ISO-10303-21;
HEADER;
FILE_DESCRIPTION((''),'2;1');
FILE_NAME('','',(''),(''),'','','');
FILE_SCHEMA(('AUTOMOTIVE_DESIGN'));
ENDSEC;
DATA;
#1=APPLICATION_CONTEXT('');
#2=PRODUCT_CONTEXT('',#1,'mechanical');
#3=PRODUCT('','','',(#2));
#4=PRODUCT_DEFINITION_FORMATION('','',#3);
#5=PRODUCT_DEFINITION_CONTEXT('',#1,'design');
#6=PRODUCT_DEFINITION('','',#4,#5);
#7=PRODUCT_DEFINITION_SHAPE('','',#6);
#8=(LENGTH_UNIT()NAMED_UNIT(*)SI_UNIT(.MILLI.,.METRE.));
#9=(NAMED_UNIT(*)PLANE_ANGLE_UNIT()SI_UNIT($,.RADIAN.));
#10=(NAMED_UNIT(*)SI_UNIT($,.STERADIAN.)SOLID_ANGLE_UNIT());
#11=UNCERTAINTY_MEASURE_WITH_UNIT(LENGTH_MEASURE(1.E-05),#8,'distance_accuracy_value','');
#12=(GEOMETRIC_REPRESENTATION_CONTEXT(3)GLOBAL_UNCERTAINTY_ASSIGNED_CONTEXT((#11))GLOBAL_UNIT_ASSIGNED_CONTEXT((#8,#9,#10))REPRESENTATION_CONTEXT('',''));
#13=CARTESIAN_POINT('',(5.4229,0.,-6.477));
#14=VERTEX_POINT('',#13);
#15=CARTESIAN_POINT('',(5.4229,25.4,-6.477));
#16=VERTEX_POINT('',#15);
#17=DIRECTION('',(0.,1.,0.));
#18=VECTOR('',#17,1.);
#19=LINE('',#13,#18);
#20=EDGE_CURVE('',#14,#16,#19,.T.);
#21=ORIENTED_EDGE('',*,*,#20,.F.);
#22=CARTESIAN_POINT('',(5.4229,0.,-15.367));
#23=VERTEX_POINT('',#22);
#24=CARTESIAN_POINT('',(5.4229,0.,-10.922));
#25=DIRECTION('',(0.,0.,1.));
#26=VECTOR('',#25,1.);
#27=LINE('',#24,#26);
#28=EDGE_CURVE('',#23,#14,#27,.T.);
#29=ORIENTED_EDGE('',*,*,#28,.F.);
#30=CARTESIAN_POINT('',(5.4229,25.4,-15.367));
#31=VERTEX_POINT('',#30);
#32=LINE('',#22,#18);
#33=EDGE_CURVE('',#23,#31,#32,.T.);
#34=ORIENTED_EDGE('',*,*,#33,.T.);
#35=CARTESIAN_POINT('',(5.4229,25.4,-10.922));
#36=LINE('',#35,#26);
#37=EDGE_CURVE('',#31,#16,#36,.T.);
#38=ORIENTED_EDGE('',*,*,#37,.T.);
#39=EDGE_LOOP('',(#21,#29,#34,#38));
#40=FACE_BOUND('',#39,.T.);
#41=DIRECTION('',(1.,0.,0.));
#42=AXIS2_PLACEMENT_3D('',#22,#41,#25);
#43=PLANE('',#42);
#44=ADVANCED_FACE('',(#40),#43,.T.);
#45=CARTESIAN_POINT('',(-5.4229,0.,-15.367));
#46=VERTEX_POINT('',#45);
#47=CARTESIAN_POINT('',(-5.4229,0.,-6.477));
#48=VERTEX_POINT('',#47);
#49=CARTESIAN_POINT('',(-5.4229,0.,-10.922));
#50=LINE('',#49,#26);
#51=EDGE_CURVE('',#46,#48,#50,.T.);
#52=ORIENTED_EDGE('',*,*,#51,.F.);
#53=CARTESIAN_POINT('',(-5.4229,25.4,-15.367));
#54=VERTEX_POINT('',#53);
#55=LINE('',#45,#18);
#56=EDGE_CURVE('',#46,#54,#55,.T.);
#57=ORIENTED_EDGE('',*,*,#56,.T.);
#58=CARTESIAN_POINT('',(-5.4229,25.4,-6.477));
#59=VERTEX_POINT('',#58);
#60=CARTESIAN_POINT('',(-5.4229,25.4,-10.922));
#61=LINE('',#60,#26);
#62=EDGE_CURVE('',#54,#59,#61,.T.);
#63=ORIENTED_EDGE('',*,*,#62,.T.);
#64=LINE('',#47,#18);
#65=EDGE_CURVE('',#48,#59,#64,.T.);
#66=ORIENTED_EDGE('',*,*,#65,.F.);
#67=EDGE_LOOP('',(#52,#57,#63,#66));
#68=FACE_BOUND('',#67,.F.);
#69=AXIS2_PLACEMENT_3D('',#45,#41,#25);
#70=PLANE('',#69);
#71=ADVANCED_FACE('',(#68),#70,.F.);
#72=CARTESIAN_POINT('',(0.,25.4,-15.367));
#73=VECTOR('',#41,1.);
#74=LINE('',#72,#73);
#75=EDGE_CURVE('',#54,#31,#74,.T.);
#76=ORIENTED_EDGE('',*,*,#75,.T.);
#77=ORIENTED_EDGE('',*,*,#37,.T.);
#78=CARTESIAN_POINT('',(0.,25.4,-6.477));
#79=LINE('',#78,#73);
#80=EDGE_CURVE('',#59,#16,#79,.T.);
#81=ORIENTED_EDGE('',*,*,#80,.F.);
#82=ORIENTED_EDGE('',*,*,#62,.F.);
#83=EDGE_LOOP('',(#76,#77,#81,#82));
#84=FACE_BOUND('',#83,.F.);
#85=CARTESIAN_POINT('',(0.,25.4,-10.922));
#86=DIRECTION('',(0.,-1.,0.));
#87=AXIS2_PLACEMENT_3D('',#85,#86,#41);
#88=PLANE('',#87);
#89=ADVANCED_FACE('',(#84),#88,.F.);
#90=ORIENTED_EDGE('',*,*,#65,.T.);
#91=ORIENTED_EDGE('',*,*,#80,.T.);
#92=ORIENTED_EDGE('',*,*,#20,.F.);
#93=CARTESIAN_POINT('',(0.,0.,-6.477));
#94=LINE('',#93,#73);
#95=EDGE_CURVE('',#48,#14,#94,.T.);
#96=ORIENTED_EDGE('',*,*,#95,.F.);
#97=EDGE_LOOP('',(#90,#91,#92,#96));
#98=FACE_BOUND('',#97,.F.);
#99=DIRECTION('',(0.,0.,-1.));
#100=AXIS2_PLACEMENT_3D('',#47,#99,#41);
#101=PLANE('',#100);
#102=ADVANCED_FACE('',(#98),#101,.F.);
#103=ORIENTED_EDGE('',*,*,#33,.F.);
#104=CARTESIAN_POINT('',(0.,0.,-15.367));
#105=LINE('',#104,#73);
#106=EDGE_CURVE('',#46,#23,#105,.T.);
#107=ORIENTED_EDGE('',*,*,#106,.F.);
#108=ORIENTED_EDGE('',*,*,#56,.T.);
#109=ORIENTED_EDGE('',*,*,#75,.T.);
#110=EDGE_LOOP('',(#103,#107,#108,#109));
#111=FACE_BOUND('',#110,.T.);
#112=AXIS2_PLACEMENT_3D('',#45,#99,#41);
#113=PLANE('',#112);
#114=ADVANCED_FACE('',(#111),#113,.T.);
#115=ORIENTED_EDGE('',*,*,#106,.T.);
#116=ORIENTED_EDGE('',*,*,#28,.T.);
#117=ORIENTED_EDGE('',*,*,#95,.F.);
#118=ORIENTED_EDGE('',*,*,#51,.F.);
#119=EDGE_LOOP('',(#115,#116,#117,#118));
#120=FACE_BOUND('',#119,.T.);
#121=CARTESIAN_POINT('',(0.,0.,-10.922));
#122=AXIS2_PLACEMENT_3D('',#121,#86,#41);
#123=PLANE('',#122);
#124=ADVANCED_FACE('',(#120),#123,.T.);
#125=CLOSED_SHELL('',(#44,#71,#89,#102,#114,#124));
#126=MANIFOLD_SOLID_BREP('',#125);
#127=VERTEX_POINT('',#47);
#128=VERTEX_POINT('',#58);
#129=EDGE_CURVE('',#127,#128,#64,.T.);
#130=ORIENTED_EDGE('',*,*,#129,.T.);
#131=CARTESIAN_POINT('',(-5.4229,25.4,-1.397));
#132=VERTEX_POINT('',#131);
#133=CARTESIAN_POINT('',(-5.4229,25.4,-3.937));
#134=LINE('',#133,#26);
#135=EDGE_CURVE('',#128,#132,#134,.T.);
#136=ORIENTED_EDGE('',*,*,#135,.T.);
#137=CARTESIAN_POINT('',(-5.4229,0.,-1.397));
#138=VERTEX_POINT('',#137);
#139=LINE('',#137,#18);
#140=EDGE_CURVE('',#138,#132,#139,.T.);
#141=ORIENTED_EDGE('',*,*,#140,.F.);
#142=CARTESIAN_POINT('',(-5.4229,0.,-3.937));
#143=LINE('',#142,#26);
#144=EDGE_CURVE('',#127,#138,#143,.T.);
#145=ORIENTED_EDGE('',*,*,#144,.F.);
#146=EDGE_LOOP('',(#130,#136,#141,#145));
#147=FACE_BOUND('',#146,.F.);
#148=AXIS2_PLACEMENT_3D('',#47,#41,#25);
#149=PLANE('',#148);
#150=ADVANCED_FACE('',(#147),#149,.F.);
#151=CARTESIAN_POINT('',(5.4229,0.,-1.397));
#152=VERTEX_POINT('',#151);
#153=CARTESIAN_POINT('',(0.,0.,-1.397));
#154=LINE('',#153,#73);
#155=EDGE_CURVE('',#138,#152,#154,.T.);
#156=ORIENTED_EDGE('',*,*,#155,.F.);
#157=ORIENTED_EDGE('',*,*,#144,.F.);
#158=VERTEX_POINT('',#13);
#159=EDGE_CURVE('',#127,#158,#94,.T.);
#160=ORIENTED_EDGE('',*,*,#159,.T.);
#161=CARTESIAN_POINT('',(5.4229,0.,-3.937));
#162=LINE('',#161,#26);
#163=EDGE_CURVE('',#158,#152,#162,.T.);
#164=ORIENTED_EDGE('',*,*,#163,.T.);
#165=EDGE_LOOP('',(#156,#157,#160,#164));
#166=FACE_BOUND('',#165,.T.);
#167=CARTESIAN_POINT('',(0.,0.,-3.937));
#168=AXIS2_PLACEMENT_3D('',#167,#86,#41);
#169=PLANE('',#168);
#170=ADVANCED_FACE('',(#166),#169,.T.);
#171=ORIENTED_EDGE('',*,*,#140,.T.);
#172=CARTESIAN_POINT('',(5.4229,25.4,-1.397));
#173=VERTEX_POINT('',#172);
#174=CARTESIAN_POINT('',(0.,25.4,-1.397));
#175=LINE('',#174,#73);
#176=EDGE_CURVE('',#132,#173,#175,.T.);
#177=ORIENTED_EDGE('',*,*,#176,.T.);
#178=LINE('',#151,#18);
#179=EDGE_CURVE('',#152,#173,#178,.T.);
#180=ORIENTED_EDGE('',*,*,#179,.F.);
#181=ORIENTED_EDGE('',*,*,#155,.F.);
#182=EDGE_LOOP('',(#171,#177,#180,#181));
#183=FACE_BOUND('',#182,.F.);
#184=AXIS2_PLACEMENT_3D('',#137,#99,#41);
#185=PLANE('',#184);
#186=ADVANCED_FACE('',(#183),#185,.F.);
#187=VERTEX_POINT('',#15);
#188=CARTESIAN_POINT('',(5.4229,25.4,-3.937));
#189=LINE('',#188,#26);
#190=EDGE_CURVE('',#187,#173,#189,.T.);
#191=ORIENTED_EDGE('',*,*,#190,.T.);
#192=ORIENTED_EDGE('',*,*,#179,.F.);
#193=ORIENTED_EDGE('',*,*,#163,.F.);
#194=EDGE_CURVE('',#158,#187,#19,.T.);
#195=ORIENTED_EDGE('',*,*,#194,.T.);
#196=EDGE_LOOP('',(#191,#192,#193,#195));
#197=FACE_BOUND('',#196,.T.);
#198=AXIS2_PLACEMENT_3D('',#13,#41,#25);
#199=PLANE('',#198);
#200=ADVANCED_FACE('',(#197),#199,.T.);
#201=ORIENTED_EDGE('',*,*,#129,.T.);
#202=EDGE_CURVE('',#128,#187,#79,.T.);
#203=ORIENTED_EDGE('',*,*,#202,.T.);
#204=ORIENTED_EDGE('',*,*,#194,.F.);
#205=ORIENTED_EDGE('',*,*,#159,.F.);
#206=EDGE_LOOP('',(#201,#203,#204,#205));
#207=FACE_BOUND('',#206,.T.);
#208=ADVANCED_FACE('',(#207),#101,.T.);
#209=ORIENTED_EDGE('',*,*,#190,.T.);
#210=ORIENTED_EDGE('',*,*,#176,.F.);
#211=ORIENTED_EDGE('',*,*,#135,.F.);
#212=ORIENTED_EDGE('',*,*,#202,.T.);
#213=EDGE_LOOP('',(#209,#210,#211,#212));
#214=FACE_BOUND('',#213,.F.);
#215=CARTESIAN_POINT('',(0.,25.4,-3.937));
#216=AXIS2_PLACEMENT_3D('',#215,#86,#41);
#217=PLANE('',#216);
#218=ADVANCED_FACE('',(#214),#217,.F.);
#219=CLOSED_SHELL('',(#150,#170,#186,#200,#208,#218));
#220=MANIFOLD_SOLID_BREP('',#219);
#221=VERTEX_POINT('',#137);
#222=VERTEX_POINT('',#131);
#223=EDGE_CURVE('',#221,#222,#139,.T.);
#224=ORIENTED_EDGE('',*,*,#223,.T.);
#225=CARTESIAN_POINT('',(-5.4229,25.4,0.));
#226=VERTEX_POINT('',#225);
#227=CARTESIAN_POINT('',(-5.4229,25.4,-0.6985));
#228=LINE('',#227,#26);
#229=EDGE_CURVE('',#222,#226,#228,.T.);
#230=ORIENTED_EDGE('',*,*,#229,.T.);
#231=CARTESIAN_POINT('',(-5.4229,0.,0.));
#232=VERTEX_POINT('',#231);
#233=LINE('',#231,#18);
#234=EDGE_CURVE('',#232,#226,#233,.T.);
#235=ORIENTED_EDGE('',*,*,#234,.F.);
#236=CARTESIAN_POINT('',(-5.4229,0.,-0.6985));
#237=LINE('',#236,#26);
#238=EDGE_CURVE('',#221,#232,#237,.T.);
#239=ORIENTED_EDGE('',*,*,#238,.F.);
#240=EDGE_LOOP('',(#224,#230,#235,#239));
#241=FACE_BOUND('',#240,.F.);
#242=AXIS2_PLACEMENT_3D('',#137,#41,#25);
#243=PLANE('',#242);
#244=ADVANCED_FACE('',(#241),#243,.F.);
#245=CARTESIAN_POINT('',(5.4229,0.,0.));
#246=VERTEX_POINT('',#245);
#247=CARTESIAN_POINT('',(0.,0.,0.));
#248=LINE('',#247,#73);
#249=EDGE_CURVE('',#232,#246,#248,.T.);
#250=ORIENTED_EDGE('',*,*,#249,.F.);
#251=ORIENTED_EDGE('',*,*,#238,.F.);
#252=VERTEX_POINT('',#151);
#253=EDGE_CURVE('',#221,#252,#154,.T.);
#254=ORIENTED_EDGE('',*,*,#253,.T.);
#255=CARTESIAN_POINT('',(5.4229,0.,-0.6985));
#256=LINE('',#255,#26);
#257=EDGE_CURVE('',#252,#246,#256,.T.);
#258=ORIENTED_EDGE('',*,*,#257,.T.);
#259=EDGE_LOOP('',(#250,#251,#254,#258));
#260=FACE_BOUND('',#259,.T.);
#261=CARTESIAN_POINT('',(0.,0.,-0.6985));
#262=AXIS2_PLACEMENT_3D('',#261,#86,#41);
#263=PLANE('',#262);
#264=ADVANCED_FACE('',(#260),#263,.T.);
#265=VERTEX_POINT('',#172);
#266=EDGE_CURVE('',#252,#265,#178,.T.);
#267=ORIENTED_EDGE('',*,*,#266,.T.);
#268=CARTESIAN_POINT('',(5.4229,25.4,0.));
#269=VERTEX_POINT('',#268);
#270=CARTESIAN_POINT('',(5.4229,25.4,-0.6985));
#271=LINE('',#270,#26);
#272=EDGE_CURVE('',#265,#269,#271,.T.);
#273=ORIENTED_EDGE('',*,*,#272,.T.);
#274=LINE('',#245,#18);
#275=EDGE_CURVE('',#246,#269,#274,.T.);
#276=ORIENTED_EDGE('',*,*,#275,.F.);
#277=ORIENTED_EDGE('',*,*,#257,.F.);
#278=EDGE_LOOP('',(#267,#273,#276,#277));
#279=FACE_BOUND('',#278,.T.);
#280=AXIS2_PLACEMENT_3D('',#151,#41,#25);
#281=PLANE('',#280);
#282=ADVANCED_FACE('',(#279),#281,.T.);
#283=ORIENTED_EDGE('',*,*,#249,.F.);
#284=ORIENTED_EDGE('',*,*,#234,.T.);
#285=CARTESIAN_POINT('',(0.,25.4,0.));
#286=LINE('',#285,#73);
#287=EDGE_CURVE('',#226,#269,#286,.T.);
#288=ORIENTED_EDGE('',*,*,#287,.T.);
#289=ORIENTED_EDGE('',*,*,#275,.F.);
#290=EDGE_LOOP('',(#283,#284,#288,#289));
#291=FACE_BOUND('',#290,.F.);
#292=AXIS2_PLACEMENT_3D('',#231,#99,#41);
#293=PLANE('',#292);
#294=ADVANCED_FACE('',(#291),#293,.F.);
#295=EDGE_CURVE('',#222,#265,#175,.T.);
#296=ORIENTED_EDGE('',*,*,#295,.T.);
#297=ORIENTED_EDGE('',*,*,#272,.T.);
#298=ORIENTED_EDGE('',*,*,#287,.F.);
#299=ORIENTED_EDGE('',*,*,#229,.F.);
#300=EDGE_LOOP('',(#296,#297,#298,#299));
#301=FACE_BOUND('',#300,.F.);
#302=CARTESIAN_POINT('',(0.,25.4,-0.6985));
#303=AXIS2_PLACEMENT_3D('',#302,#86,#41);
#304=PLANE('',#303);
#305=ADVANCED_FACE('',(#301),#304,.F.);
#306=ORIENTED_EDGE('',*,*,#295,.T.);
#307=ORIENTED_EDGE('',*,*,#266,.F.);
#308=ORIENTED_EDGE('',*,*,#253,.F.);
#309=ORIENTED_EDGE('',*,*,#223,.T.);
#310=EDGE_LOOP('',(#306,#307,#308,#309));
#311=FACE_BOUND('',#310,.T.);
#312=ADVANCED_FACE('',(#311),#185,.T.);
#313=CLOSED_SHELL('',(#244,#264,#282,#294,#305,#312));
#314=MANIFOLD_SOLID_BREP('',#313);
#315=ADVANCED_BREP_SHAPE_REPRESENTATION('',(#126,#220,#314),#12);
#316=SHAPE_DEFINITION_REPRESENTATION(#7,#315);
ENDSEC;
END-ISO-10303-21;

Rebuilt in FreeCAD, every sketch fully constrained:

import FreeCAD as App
import Part
import Sketcher
Q = App.Units.Quantity

doc = App.newDocument("Part")
body = doc.addObject("PartDesign::Body", "Body")

sketch1 = body.newObject("Sketcher::SketchObject", "Sketch")
sketch1.AttachmentSupport = (doc.getObject("XZ_Plane"), [""])
sketch1.MapMode = "FlatFace"
sketch1.addGeometry([
    Part.LineSegment(App.Vector(-5.4, 0, 0), App.Vector(-5.4, -1.4, 0)),
    Part.LineSegment(App.Vector(-5.4, -1.4, 0), App.Vector(5.4, -1.4, 0)),
    Part.LineSegment(App.Vector(5.4, -1.4, 0), App.Vector(5.4, 0, 0)),
    Part.LineSegment(App.Vector(5.4, 0, 0), App.Vector(-5.4, 0, 0)),
], False)
sketch1.addConstraint([
    Sketcher.Constraint("Coincident", 0, 2, 1, 1),
    Sketcher.Constraint("Coincident", 1, 2, 2, 1),
    Sketcher.Constraint("Coincident", 2, 2, 3, 1),
    Sketcher.Constraint("Coincident", 3, 2, 0, 1),
    Sketcher.Constraint("Vertical", 0),
    Sketcher.Constraint("Horizontal", 1),
    Sketcher.Constraint("Vertical", 2),
    Sketcher.Constraint("Horizontal", 3),
    Sketcher.Constraint("Symmetric", 2, 2, 3, 2, -1, 1),
    Sketcher.Constraint("DistanceX", 1, 1, 1, 2, Q("0.427 in")),
    Sketcher.Constraint("DistanceY", 0, 2, 0, 1, Q("0.055 in")),
])
pad1 = body.newObject("PartDesign::Pad", "Pad")
pad1.Profile = sketch1
pad1.Length = Q("1 in")
pad1.Reversed = True
body2 = doc.addObject("PartDesign::Body", "Body001")

sketch2 = body2.newObject("Sketcher::SketchObject", "Sketch001")
sketch2.AttachmentSupport = (doc.getObject("XZ_Plane001"), [""])
sketch2.MapMode = "FlatFace"
sketch2.addGeometry([
    Part.LineSegment(App.Vector(-5, -1, 0), App.Vector(-5, -6, 0)),
    Part.LineSegment(App.Vector(-5, -6, 0), App.Vector(5, -6, 0)),
    Part.LineSegment(App.Vector(5, -6, 0), App.Vector(5, -1, 0)),
    Part.LineSegment(App.Vector(5, -1, 0), App.Vector(-5, -1, 0)),
], False)
sketch2.addConstraint([
    Sketcher.Constraint("Coincident", 0, 2, 1, 1),
    Sketcher.Constraint("Coincident", 1, 2, 2, 1),
    Sketcher.Constraint("Coincident", 2, 2, 3, 1),
    Sketcher.Constraint("Coincident", 3, 2, 0, 1),
    Sketcher.Constraint("Vertical", 0),
    Sketcher.Constraint("Horizontal", 1),
    Sketcher.Constraint("Vertical", 2),
    Sketcher.Constraint("Horizontal", 3),
    Sketcher.Constraint("DistanceY", 0, 2, 0, 1, Q("0.2 in")),
    Sketcher.Constraint("DistanceX", 1, 1, 1, 2, Q("0.427 in")),
    Sketcher.Constraint("DistanceY", 0, 2, -1, 1, Q("0.255 in")),
    Sketcher.Constraint("DistanceX", 0, 2, -1, 1, Q("0.2135 in")),
])
pad2 = body2.newObject("PartDesign::Pad", "Pad001")
pad2.Profile = sketch2
pad2.Length = Q("1 in")
pad2.Reversed = True
body3 = doc.addObject("PartDesign::Body", "Body002")

sketch3 = body3.newObject("Sketcher::SketchObject", "Sketch002")
sketch3.AttachmentSupport = (doc.getObject("XZ_Plane002"), [""])
sketch3.MapMode = "FlatFace"
sketch3.addGeometry([
    Part.LineSegment(App.Vector(-5, -6, 0), App.Vector(-5, -15, 0)),
    Part.LineSegment(App.Vector(-5, -15, 0), App.Vector(5, -15, 0)),
    Part.LineSegment(App.Vector(5, -15, 0), App.Vector(5, -6, 0)),
    Part.LineSegment(App.Vector(5, -6, 0), App.Vector(-5, -6, 0)),
], False)
sketch3.addConstraint([
    Sketcher.Constraint("Coincident", 0, 2, 1, 1),
    Sketcher.Constraint("Coincident", 1, 2, 2, 1),
    Sketcher.Constraint("Coincident", 2, 2, 3, 1),
    Sketcher.Constraint("Coincident", 3, 2, 0, 1),
    Sketcher.Constraint("Vertical", 0),
    Sketcher.Constraint("Horizontal", 1),
    Sketcher.Constraint("Vertical", 2),
    Sketcher.Constraint("Horizontal", 3),
    Sketcher.Constraint("DistanceY", 0, 2, 0, 1, Q("0.35 in")),
    Sketcher.Constraint("DistanceX", 1, 1, 1, 2, Q("0.427 in")),
    Sketcher.Constraint("DistanceY", 0, 2, -1, 1, Q("0.605 in")),
    Sketcher.Constraint("DistanceX", 0, 2, -1, 1, Q("0.2135 in")),
])
pad3 = body3.newObject("PartDesign::Pad", "Pad002")
pad3.Profile = sketch3
pad3.Length = Q("1 in")
pad3.Reversed = True

doc.recompute()
